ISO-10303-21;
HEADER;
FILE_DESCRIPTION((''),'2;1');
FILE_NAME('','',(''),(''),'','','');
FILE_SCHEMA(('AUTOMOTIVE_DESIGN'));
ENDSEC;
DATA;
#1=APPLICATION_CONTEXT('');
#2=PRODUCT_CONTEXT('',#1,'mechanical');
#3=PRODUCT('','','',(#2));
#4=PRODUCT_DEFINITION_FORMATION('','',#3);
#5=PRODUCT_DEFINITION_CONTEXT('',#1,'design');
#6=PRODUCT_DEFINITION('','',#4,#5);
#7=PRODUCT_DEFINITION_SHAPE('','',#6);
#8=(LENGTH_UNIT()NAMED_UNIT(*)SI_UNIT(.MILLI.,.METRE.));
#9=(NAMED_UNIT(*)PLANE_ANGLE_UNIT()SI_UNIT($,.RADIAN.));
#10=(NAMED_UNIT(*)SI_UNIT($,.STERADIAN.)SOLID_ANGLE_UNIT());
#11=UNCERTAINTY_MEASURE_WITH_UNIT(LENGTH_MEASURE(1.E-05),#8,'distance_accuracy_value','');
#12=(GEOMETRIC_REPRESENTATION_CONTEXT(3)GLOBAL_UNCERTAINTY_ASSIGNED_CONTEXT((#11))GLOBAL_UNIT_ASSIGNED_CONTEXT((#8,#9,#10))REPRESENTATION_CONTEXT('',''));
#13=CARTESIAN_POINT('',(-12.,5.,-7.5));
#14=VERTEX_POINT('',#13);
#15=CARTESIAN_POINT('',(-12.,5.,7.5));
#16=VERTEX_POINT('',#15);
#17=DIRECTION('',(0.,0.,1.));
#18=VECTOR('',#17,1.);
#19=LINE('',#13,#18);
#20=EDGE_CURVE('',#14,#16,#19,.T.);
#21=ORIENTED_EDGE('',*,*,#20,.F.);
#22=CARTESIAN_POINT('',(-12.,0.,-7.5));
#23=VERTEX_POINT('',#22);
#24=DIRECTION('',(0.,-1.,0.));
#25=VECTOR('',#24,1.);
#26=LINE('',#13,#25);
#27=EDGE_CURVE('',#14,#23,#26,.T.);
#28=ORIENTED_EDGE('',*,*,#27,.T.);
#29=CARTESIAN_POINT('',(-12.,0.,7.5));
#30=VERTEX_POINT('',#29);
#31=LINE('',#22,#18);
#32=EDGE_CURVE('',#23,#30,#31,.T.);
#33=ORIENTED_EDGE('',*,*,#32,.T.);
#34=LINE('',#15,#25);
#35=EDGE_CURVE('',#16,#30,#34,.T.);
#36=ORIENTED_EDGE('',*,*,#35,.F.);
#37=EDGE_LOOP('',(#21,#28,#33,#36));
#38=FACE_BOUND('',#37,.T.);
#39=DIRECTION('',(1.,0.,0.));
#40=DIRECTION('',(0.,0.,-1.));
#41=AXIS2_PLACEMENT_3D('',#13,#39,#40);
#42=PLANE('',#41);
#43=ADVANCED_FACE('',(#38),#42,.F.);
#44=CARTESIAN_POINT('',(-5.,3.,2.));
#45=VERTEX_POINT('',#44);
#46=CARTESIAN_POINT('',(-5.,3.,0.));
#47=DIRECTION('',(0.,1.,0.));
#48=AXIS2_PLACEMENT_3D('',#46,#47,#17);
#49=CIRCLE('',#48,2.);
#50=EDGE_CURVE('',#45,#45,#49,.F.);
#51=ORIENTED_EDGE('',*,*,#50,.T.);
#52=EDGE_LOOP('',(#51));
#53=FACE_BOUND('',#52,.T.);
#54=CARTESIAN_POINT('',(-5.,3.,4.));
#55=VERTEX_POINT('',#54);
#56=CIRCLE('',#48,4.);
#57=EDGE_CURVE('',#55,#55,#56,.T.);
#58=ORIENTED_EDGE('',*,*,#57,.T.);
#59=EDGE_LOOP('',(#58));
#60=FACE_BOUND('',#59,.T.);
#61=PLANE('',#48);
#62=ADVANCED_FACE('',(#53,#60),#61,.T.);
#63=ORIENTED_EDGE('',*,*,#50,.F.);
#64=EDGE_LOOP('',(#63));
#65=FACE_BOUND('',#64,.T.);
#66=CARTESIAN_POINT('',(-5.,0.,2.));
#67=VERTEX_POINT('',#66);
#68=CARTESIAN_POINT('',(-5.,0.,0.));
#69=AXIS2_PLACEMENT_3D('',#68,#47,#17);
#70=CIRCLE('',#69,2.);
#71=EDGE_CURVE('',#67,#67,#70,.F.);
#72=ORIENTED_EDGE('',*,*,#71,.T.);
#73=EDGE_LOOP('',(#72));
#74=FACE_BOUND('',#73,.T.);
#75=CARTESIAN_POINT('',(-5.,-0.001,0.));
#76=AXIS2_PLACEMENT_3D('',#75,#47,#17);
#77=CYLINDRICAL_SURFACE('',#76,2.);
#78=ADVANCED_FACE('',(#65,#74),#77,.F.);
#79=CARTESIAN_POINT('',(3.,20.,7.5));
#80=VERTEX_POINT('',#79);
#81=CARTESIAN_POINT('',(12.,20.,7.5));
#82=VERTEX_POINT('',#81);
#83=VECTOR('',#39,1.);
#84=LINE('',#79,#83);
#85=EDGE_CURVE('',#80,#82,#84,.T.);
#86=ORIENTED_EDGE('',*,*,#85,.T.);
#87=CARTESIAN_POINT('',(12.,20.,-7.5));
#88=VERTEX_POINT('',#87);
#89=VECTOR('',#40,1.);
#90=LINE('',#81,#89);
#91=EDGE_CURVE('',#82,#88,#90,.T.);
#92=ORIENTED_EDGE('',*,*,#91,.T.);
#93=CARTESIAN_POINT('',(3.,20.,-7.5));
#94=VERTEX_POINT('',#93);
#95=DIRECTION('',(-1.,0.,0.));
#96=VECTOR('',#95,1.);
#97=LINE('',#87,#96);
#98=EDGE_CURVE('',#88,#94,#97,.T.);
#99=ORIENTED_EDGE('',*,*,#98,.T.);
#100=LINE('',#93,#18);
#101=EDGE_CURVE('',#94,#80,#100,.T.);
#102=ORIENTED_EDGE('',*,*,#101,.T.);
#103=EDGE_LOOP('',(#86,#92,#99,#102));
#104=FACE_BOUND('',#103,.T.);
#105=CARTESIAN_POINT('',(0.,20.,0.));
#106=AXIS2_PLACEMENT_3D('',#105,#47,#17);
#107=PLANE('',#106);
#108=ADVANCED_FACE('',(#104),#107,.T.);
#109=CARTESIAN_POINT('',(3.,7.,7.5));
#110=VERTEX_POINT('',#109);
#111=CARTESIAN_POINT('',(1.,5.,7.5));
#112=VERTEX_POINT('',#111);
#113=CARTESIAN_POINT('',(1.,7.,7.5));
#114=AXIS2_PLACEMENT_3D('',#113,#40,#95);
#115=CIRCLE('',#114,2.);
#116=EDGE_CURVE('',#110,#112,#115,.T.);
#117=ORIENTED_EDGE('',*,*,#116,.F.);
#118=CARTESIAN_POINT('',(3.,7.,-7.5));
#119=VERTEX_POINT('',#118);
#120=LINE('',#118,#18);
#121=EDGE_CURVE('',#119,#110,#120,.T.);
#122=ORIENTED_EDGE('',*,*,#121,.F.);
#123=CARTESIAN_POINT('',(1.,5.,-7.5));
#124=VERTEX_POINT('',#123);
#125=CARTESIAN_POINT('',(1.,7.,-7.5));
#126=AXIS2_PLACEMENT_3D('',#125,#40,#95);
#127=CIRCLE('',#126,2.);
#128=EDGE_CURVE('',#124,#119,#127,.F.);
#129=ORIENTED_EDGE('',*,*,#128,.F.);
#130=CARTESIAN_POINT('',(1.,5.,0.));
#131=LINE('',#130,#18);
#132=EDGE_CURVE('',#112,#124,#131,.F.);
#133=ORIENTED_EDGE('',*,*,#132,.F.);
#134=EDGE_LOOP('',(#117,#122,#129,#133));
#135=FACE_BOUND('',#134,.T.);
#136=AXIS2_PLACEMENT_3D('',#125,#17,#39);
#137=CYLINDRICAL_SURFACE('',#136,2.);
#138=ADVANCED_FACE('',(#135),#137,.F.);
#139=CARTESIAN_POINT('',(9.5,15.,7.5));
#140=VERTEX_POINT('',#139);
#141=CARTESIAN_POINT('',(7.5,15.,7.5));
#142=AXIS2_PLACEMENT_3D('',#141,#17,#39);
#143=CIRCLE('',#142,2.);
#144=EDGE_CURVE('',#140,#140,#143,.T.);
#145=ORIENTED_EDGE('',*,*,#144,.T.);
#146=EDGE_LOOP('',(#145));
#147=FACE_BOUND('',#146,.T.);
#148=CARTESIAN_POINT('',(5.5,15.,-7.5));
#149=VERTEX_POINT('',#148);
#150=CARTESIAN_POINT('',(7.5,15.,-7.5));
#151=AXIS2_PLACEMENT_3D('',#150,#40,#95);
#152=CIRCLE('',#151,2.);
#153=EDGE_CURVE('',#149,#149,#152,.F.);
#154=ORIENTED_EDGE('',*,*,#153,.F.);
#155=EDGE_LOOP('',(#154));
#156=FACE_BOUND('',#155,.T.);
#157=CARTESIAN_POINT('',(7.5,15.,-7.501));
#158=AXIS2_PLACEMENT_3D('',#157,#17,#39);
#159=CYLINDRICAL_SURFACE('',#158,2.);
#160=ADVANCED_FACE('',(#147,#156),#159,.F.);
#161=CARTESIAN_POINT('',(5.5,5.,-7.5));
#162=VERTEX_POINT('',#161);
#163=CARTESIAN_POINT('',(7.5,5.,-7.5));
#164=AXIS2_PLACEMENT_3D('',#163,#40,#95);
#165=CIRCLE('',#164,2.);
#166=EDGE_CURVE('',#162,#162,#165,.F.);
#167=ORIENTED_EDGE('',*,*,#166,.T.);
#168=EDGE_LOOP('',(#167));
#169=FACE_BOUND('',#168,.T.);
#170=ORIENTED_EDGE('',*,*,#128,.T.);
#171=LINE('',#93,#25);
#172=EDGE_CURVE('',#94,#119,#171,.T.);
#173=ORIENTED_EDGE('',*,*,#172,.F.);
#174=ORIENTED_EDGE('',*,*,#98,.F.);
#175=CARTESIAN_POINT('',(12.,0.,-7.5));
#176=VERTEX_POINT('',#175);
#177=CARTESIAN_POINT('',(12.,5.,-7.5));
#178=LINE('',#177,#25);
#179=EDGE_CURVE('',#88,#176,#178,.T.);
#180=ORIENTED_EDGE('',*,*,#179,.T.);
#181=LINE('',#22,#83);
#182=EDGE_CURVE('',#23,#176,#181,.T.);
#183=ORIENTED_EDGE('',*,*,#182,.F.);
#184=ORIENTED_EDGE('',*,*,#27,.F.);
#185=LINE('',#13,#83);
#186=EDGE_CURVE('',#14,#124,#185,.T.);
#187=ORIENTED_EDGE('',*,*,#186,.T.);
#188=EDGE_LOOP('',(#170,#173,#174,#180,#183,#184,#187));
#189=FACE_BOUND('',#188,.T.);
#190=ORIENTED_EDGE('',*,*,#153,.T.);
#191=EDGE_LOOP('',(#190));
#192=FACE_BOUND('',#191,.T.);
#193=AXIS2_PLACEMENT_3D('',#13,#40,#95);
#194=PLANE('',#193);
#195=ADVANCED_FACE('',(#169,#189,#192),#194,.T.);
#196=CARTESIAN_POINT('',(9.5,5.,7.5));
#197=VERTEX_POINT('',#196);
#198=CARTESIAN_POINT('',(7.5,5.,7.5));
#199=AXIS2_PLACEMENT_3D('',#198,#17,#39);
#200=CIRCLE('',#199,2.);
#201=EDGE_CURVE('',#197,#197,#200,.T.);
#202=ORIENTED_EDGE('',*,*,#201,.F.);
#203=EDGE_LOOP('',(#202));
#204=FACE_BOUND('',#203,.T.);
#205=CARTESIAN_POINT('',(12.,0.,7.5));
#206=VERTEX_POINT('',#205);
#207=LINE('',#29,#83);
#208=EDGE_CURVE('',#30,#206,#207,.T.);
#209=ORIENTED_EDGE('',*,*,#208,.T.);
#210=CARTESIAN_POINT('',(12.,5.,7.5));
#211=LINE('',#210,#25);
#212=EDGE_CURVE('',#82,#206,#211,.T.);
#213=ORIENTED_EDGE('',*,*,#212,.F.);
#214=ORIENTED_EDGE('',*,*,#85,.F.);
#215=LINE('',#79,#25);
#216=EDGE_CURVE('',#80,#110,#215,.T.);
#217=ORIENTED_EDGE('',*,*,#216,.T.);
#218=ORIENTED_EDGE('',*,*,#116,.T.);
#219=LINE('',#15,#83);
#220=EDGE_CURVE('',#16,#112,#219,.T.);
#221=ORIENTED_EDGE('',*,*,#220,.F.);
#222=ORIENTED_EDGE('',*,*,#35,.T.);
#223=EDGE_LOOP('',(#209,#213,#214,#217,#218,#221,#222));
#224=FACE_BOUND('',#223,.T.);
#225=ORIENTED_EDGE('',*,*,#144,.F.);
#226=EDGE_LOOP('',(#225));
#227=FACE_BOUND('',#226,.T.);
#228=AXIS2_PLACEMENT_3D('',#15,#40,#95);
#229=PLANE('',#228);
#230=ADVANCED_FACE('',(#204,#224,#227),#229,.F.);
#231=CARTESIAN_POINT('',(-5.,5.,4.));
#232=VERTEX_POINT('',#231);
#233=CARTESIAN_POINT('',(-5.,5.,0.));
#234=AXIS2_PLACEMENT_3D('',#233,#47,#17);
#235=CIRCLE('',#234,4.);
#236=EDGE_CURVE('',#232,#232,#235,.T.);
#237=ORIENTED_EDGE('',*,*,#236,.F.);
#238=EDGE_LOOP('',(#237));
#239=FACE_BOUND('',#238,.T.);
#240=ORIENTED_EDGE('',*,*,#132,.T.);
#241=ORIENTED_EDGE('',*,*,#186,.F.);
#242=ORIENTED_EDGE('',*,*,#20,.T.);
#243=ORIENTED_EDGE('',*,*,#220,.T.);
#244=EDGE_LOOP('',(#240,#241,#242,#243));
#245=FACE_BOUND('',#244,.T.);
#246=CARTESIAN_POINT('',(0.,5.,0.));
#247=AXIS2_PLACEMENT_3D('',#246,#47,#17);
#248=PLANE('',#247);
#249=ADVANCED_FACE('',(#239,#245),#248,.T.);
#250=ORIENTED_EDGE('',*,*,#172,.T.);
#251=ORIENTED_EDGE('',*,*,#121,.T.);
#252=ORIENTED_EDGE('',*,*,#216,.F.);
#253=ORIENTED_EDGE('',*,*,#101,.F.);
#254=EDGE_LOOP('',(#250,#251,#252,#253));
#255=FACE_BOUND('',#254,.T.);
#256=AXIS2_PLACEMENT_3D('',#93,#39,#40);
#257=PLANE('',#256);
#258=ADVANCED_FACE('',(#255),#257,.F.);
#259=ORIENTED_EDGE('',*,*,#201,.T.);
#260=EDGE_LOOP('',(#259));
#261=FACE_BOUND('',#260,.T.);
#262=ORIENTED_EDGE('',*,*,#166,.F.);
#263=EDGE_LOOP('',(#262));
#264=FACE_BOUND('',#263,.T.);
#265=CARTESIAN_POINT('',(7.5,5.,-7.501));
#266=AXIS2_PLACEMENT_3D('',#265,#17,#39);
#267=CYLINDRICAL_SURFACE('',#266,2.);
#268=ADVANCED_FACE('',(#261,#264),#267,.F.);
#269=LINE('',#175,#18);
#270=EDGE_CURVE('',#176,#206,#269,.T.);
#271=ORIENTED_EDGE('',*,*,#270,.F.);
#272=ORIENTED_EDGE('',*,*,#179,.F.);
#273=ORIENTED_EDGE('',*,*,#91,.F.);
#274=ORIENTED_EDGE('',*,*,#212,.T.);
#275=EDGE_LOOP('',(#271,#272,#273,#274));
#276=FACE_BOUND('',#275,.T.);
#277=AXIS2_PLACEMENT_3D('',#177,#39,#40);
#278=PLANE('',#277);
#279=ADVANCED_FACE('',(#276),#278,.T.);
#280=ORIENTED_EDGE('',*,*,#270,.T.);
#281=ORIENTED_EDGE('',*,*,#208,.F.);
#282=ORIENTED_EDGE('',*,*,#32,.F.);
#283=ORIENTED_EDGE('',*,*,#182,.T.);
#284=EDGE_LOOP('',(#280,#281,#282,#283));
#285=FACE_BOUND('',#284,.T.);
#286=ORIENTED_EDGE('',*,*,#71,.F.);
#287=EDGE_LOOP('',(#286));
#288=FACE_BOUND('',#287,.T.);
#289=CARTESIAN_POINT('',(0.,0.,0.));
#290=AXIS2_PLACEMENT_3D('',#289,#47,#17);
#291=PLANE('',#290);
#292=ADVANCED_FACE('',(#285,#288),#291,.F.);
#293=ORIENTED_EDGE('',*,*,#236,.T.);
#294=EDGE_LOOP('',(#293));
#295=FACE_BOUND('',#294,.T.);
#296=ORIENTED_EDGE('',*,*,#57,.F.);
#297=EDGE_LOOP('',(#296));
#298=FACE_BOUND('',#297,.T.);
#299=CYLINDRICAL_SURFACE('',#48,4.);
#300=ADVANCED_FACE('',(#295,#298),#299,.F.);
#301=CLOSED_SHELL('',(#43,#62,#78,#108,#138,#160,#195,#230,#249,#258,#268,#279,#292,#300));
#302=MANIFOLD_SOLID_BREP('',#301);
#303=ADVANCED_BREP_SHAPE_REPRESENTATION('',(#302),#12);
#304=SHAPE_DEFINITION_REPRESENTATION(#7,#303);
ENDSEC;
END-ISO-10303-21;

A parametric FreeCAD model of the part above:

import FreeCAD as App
import Part
import Sketcher
from FreeCAD import Vector
Q = App.Units.Quantity


def edges_at(feature, points):
    """Names of the edges that pass closest to the given points."""
    edges = feature.Shape.Edges
    near = lambda p: min(range(len(edges)), key=lambda i: edges[i].distToShape(Part.Vertex(*p))[0])
    return sorted({f"Edge{near(p) + 1}" for p in points})


def add_polygon(sketch, points):
    """Adds a closed chain of lines whose ends are joined by coincident constraints."""
    first, n = sketch.GeometryCount, len(points)
    for a, b in zip(points, points[1:] + points[:1]):
        sketch.addGeometry(Part.LineSegment(App.Vector(*a, 0), App.Vector(*b, 0)), False)
    for i in range(n):
        sketch.addConstraint(Sketcher.Constraint("Coincident", first + i, 2, first + (i + 1) % n, 1))

doc = App.newDocument("Part")
body = doc.addObject("PartDesign::Body", "Body")

# Sketch on XZ plane
sketch1 = body.newObject("Sketcher::SketchObject", "Sketch")
sketch1.AttachmentSupport = (doc.getObject("XZ_Plane"), [""])
sketch1.MapMode = "FlatFace"
add_polygon(sketch1, [(-12, -8), (-12, 8), (12, 8), (12, -8)])  # lines 0-3
sketch1.addConstraint([
    Sketcher.Constraint("Vertical", 0),
    Sketcher.Constraint("Horizontal", 1),
    Sketcher.Constraint("Vertical", 2),
    Sketcher.Constraint("Horizontal", 3),
    Sketcher.Constraint("Symmetric", 0, 2, 2, 2, -1, 1),
    Sketcher.Constraint("DistanceX", 1, 1, 1, 2, Q("24 mm")),
    Sketcher.Constraint("DistanceY", 0, 1, 0, 2, Q("15 mm")),
])
pad1 = body.newObject("PartDesign::Pad", "Pad")
pad1.Profile = sketch1
pad1.Length = 5
pad1.Reversed = True

# Sketch on XZ plane
sketch2 = body.newObject("Sketcher::SketchObject", "Sketch001")
sketch2.AttachmentSupport = (doc.getObject("XZ_Plane"), [""])
sketch2.MapMode = "FlatFace"
sketch2.AttachmentOffset = App.Placement(Vector(0, 0, -5), App.Rotation())
add_polygon(sketch2, [(3, -8), (3, 8), (12, 8), (12, -8)])  # lines 0-3
sketch2.addConstraint([
    Sketcher.Constraint("Vertical", 0),
    Sketcher.Constraint("Horizontal", 1),
    Sketcher.Constraint("Vertical", 2),
    Sketcher.Constraint("Horizontal", 3),
    Sketcher.Constraint("DistanceX", 1, 1, 1, 2, Q("9 mm")),
    Sketcher.Constraint("DistanceY", 0, 1, 0, 2, Q("15 mm")),
    Sketcher.Constraint("DistanceX", -1, 1, 0, 2, Q("3 mm")),
    Sketcher.Constraint("DistanceY", -1, 1, 0, 2, Q("7.5 mm")),
])
pad2 = body.newObject("PartDesign::Pad", "Pad001")
pad2.Profile = sketch2
pad2.Length = 15
pad2.Reversed = True

# Sketch on XZ plane
sketch3 = body.newObject("Sketcher::SketchObject", "Sketch002")
sketch3.AttachmentSupport = (doc.getObject("XZ_Plane"), [""])
sketch3.MapMode = "FlatFace"
sketch3.AttachmentOffset = App.Placement(Vector(0, 0, -5), App.Rotation())
sketch3.addGeometry(Part.Circle(Vector(-5, 0, 0), Vector(0, 0, 1), 2), False)
sketch3.addConstraint([
    Sketcher.Constraint("PointOnObject", 0, 3, -1),
    Sketcher.Constraint("Diameter", 0, Q("4 mm")),
    Sketcher.Constraint("DistanceX", 0, 3, -1, 1, Q("5 mm")),
])
pocket1 = body.newObject("PartDesign::Pocket", "Pocket")
pocket1.Profile = sketch3
pocket1.Type = "UpToFirst"
pocket1.Reversed = True

# Sketch on XZ plane
sketch4 = body.newObject("Sketcher::SketchObject", "Sketch003")
sketch4.AttachmentSupport = (doc.getObject("XZ_Plane"), [""])
sketch4.MapMode = "FlatFace"
sketch4.AttachmentOffset = App.Placement(Vector(0, 0, -5), App.Rotation())
sketch4.addGeometry(Part.Circle(Vector(-5, 0, 0), Vector(0, 0, 1), 4), False)
sketch4.addConstraint([
    Sketcher.Constraint("PointOnObject", 0, 3, -1),
    Sketcher.Constraint("Diameter", 0, Q("8 mm")),
    Sketcher.Constraint("DistanceX", 0, 3, -1, 1, Q("5 mm")),
])
pocket2 = body.newObject("PartDesign::Pocket", "Pocket001")
pocket2.Profile = sketch4
pocket2.Length = 2
pocket2.Reversed = True

# Sketch on XY plane
sketch5 = body.newObject("Sketcher::SketchObject", "Sketch004")
sketch5.AttachmentSupport = (doc.getObject("XY_Plane"), [""])
sketch5.MapMode = "FlatFace"
sketch5.AttachmentOffset = App.Placement(Vector(0, 0, 7.5), App.Rotation())
sketch5.addGeometry(Part.Circle(Vector(7.5, 15, 0), Vector(0, 0, 1), 2), False)
sketch5.addConstraint([
    Sketcher.Constraint("Diameter", 0, Q("4 mm")),
    Sketcher.Constraint("DistanceY", -1, 1, 0, 3, Q("15 mm")),
    Sketcher.Constraint("DistanceX", -1, 1, 0, 3, Q("7.5 mm")),
])
pocket3 = body.newObject("PartDesign::Pocket", "Pocket002")
pocket3.Profile = sketch5
pocket3.Type = "UpToFirst"

# Sketch on XY plane
sketch6 = body.newObject("Sketcher::SketchObject", "Sketch005")
sketch6.AttachmentSupport = (doc.getObject("XY_Plane"), [""])
sketch6.MapMode = "FlatFace"
sketch6.AttachmentOffset = App.Placement(Vector(0, 0, 7.5), App.Rotation())
sketch6.addGeometry(Part.Circle(Vector(7.5, 5, 0), Vector(0, 0, 1), 2), False)
sketch6.addConstraint([
    Sketcher.Constraint("Diameter", 0, Q("4 mm")),
    Sketcher.Constraint("DistanceY", -1, 1, 0, 3, Q("5 mm")),
    Sketcher.Constraint("DistanceX", -1, 1, 0, 3, Q("7.5 mm")),
])
pocket4 = body.newObject("PartDesign::Pocket", "Pocket003")
pocket4.Profile = sketch6
pocket4.Type = "UpToFirst"
doc.recompute()

fillet = body.newObject("PartDesign::Fillet", "Fillet")
fillet.Base = (pocket4, edges_at(pocket4, [(3, 5, 0)]))
fillet.Radius = 2

doc.recompute()
